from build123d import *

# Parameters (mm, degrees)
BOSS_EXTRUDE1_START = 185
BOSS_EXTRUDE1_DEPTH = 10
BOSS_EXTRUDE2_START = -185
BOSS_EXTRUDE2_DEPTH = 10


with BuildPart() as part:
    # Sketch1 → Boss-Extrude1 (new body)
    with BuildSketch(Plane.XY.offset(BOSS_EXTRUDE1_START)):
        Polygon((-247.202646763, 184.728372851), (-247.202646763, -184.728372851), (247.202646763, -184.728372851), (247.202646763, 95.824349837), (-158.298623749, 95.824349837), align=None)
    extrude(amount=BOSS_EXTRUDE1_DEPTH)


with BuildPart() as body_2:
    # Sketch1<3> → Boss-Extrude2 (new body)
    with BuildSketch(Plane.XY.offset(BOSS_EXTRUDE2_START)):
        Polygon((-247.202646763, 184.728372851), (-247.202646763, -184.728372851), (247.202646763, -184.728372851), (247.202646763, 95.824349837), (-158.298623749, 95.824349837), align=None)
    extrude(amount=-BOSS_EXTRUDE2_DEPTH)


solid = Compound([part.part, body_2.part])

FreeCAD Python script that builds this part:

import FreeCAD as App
import Part
import Sketcher
Q = App.Units.Quantity

doc = App.newDocument("Part")
params = doc.addObject("Spreadsheet::Sheet", "Params")
for row, (alias, value) in enumerate([
    ("pad1_length", "10 mm"),
    ("pad2_length", "10 mm"),
], start=1):
    params.set(f"A{row}", alias)
    params.set(f"B{row}", "=" + value)
    params.setAlias(f"B{row}", alias)

body = doc.addObject("PartDesign::Body", "Body")

sketch1 = body.newObject("Sketcher::SketchObject", "Sketch")
sketch1.AttachmentSupport = (doc.getObject("XY_Plane"), [""])
sketch1.MapMode = "FlatFace"
sketch1.AttachmentOffset = App.Placement(App.Vector(0, 0, 185), App.Rotation())
sketch1.addGeometry(Part.LineSegment(App.Vector(-247, 185, 0), App.Vector(-247, -185, 0)), False)
sketch1.addGeometry(Part.LineSegment(App.Vector(-247, -185, 0), App.Vector(247, -185, 0)), False)
sketch1.addGeometry(Part.LineSegment(App.Vector(247, -185, 0), App.Vector(247, 96, 0)), False)
sketch1.addGeometry(Part.LineSegment(App.Vector(247, 96, 0), App.Vector(-158, 96, 0)), False)
sketch1.addGeometry(Part.LineSegment(App.Vector(-158, 96, 0), App.Vector(-247, 185, 0)), False)
sketch1.addConstraint(Sketcher.Constraint("Coincident", 0, 2, 1, 1))
sketch1.addConstraint(Sketcher.Constraint("Coincident", 1, 2, 2, 1))
sketch1.addConstraint(Sketcher.Constraint("Coincident", 2, 2, 3, 1))
sketch1.addConstraint(Sketcher.Constraint("Coincident", 3, 2, 4, 1))
sketch1.addConstraint(Sketcher.Constraint("Coincident", 4, 2, 0, 1))
sketch1.addConstraint(Sketcher.Constraint("Vertical", 0))
sketch1.addConstraint(Sketcher.Constraint("Horizontal", 1))
sketch1.addConstraint(Sketcher.Constraint("Vertical", 2))
sketch1.addConstraint(Sketcher.Constraint("Horizontal", 3))
sketch1.addConstraint(Sketcher.Constraint("Symmetric", 1, 2, 4, 2, -1, 1))
sketch1.addConstraint(Sketcher.Constraint("Angle", 4, Q("135 deg")))
sketch1.addConstraint(Sketcher.Constraint("DistanceX", 3, 2, 3, 1, Q("405.501271 mm")))
sketch1.addConstraint(Sketcher.Constraint("DistanceX", 1, 1, 1, 2, Q("494.405294 mm")))
sketch1.addConstraint(Sketcher.Constraint("DistanceY", 0, 2, 0, 1, Q("369.456746 mm")))
pad1 = body.newObject("PartDesign::Pad", "Pad")
pad1.Profile = sketch1
pad1.setExpression("Length", "Params.pad1_length")
body2 = doc.addObject("PartDesign::Body", "Body001")

sketch2 = body2.newObject("Sketcher::SketchObject", "Sketch001")
sketch2.AttachmentSupport = (doc.getObject("XY_Plane001"), [""])
sketch2.MapMode = "FlatFace"
sketch2.AttachmentOffset = App.Placement(App.Vector(0, 0, -185), App.Rotation())
sketch2.addGeometry(Part.LineSegment(App.Vector(-247, 185, 0), App.Vector(-247, -185, 0)), False)
sketch2.addGeometry(Part.LineSegment(App.Vector(-247, -185, 0), App.Vector(247, -185, 0)), False)
sketch2.addGeometry(Part.LineSegment(App.Vector(247, -185, 0), App.Vector(247, 96, 0)), False)
sketch2.addGeometry(Part.LineSegment(App.Vector(247, 96, 0), App.Vector(-158, 96, 0)), False)
sketch2.addGeometry(Part.LineSegment(App.Vector(-158, 96, 0), App.Vector(-247, 185, 0)), False)
sketch2.addConstraint(Sketcher.Constraint("Coincident", 0, 2, 1, 1))
sketch2.addConstraint(Sketcher.Constraint("Coincident", 1, 2, 2, 1))
sketch2.addConstraint(Sketcher.Constraint("Coincident", 2, 2, 3, 1))
sketch2.addConstraint(Sketcher.Constraint("Coincident", 3, 2, 4, 1))
sketch2.addConstraint(Sketcher.Constraint("Coincident", 4, 2, 0, 1))
sketch2.addConstraint(Sketcher.Constraint("Vertical", 0))
sketch2.addConstraint(Sketcher.Constraint("Horizontal", 1))
sketch2.addConstraint(Sketcher.Constraint("Vertical", 2))
sketch2.addConstraint(Sketcher.Constraint("Horizontal", 3))
sketch2.addConstraint(Sketcher.Constraint("Symmetric", 1, 2, 4, 2, -1, 1))
sketch2.addConstraint(Sketcher.Constraint("Angle", 4, Q("135 deg")))
sketch2.addConstraint(Sketcher.Constraint("DistanceX", 3, 2, 3, 1, Q("405.501271 mm")))
sketch2.addConstraint(Sketcher.Constraint("DistanceX", 1, 1, 1, 2, Q("494.405294 mm")))
sketch2.addConstraint(Sketcher.Constraint("DistanceY", 0, 2, 0, 1, Q("369.456746 mm")))
pad2 = body2.newObject("PartDesign::Pad", "Pad001")
pad2.Profile = sketch2
pad2.setExpression("Length", "Params.pad2_length")
pad2.Reversed = True

doc.recompute()
